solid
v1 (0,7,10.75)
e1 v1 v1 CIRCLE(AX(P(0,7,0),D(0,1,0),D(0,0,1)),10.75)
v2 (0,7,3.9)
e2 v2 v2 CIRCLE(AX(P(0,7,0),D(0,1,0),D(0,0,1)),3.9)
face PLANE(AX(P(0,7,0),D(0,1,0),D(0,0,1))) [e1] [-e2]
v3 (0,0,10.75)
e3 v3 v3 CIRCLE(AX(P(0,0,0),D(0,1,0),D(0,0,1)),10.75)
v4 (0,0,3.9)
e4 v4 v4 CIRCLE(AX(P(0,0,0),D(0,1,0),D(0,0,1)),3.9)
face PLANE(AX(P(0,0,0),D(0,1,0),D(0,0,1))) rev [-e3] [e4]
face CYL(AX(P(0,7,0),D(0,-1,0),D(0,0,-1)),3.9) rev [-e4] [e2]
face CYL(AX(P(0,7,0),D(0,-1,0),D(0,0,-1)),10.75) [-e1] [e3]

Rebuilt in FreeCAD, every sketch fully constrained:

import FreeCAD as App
import Part
import Sketcher

V = App.Vector

doc = App.newDocument("Part")
body = doc.addObject("PartDesign::Body", "Body")

sketch1 = body.newObject("Sketcher::SketchObject", "Sketch")
sketch1.AttachmentSupport = (doc.getObject("XZ_Plane"), [""])
sketch1.MapMode = "FlatFace"
sketch1.addGeometry([
    Part.Circle(V(0, 0, 0), V(0, 0, 1), 10.75),
    Part.Circle(V(0, 0, 0), V(0, 0, 1), 3.9),
], False)
sketch1.addConstraint([
    Sketcher.Constraint("Coincident", 0, 3, -1, 1),
    Sketcher.Constraint("Coincident", 1, 3, -1, 1),
    Sketcher.Constraint("Diameter", 0, 21.5),
    Sketcher.Constraint("Diameter", 1, 7.8),
])
pad1 = body.newObject("PartDesign::Pad", "Pad")
pad1.Profile = sketch1
pad1.Length = 7
pad1.Reversed = True

doc.recompute()
